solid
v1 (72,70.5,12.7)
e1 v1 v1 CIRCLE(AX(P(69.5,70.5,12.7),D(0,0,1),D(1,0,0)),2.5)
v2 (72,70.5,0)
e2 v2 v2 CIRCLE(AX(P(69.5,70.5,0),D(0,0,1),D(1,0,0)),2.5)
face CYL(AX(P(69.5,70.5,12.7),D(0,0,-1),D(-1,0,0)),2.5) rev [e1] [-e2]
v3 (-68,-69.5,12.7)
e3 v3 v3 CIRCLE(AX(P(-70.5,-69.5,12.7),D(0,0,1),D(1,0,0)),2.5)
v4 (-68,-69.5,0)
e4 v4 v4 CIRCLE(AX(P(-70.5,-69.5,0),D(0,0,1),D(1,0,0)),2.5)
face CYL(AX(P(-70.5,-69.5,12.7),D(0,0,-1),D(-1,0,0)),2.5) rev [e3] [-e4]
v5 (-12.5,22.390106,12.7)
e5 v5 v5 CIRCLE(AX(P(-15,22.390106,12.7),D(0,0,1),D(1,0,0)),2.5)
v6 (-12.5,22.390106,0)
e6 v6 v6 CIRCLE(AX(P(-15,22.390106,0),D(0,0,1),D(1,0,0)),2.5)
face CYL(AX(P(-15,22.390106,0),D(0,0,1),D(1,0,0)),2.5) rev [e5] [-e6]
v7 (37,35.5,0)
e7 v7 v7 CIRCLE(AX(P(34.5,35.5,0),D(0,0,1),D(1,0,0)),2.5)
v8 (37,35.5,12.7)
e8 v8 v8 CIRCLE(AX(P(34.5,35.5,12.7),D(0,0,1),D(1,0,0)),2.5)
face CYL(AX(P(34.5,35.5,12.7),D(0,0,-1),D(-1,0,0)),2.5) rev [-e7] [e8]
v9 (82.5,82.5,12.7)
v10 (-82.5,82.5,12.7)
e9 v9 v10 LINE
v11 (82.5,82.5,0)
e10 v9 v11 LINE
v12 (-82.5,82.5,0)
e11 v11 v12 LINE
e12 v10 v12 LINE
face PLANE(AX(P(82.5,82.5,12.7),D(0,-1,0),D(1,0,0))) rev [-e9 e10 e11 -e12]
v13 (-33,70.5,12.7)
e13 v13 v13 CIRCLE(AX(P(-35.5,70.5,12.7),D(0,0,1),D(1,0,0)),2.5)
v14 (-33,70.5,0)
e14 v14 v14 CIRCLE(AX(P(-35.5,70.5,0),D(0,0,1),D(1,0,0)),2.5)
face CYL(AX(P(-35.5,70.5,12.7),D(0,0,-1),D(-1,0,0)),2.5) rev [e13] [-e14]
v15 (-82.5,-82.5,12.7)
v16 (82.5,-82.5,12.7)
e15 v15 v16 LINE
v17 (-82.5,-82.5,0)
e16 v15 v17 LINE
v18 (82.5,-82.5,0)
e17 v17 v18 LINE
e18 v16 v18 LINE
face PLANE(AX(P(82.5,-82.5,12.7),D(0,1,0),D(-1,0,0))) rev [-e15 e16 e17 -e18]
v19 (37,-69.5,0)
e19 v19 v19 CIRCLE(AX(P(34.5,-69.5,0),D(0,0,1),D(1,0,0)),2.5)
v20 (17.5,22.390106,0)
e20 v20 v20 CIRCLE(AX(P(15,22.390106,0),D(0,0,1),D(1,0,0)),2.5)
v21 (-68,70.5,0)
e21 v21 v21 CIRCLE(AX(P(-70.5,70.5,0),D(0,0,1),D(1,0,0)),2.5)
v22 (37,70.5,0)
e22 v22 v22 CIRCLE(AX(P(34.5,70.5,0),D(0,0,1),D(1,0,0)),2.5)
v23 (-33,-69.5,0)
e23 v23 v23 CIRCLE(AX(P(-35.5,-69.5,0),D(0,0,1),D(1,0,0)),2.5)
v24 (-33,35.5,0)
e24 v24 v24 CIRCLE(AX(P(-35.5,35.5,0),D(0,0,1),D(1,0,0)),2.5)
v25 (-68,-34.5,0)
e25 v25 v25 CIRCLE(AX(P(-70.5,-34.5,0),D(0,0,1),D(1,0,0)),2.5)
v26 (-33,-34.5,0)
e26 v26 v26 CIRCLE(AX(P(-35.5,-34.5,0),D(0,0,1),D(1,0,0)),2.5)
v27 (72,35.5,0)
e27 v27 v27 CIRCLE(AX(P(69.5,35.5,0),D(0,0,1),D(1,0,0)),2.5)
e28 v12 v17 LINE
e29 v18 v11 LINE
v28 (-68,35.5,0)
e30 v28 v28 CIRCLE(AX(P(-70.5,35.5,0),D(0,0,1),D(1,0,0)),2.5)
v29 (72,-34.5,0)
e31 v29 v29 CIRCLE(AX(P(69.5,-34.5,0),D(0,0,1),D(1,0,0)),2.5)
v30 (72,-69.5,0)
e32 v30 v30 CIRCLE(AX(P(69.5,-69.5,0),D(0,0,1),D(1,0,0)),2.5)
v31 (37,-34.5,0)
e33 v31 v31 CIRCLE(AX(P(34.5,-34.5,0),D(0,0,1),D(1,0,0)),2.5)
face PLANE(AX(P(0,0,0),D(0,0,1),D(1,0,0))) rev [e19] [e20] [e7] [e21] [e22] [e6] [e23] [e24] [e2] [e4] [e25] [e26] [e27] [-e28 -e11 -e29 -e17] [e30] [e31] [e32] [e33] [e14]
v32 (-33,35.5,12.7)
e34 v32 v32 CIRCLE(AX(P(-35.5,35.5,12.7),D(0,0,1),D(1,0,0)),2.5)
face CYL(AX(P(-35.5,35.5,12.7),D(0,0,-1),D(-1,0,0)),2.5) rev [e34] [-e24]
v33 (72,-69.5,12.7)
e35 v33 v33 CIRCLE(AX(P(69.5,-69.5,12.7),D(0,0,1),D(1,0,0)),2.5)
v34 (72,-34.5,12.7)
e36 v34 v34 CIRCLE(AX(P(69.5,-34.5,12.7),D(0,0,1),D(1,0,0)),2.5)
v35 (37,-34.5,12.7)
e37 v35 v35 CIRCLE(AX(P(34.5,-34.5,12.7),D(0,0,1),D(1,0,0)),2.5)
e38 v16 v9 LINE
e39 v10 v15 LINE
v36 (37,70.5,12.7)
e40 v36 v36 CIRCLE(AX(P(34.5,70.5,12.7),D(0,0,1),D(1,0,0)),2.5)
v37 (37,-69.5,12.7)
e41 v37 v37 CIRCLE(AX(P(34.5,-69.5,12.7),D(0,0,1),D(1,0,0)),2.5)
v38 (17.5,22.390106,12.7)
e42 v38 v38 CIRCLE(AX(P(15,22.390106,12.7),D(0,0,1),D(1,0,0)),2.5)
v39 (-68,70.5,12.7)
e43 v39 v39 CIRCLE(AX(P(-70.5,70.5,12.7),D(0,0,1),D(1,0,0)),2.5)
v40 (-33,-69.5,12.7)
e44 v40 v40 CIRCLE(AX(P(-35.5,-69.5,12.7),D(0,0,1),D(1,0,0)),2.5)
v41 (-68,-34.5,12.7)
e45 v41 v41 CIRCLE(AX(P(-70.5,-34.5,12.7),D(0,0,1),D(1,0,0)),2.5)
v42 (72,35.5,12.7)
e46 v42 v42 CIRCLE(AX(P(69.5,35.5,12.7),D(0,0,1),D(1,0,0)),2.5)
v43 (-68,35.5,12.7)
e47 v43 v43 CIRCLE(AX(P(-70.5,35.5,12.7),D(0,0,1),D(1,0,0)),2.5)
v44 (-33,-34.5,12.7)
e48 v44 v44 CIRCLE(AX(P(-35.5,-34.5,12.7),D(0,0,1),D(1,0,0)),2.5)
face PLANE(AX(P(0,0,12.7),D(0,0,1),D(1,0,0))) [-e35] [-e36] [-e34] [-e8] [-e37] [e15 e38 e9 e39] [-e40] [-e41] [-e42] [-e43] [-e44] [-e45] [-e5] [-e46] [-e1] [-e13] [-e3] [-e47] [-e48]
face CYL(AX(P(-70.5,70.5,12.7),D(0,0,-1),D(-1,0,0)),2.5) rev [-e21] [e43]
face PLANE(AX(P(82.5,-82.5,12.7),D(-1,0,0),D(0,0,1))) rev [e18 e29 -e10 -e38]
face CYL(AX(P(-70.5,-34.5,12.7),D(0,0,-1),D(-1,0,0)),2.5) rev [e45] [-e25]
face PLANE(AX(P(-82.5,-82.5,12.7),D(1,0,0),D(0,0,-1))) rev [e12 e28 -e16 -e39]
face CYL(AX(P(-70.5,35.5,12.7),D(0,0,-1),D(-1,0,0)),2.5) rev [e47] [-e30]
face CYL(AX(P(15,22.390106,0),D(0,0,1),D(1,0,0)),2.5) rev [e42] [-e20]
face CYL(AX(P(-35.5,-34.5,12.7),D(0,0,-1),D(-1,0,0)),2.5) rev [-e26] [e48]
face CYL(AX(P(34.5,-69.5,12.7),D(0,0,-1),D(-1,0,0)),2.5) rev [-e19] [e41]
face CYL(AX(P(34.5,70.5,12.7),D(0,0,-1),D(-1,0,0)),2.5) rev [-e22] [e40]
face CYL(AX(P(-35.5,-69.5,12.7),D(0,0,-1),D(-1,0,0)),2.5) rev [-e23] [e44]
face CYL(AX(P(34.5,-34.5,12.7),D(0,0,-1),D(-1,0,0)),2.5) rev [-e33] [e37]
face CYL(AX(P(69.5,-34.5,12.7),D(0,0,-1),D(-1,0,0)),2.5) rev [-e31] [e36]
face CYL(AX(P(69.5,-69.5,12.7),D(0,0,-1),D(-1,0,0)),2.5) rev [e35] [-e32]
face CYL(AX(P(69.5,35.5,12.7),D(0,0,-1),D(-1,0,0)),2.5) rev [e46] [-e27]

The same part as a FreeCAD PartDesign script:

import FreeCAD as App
import Part
import Sketcher

V = App.Vector


def add_polygon(sketch, points):
    """Adds a closed chain of lines whose ends are joined by coincident constraints."""
    first, n = sketch.GeometryCount, len(points)
    for a, b in zip(points, points[1:] + points[:1]):
        sketch.addGeometry(Part.LineSegment(App.Vector(*a, 0), App.Vector(*b, 0)), False)
    for i in range(n):
        sketch.addConstraint(Sketcher.Constraint("Coincident", first + i, 2, first + (i + 1) % n, 1))

doc = App.newDocument("Part")
body = doc.addObject("PartDesign::Body", "Body")

sketch1 = doc.addObject("Sketcher::SketchObject", "Sketch")
body.addObject(sketch1)
sketch1.AttachmentSupport = (doc.XY_Plane, [""])
sketch1.MapMode = "FlatFace"
add_polygon(sketch1, [(-82.5, 82.5), (-82.5, -82.5), (82.5, -82.5), (82.5, 82.5)])
sketch1.addGeometry(Part.Circle(V(-70.5, -69.5, 0), V(0, 0, 1), 2.5), False)
sketch1.addGeometry(Part.Circle(V(-35.5, -69.5, 0), V(0, 0, 1), 2.5), False)
sketch1.addGeometry(Part.Circle(V(-70.5, -34.5, 0), V(0, 0, 1), 2.5), False)
sketch1.addGeometry(Part.Circle(V(-35.5, -34.5, 0), V(0, 0, 1), 2.5), False)
sketch1.addGeometry(Part.Circle(V(34.5, -69.5, 0), V(0, 0, 1), 2.5), False)
sketch1.addGeometry(Part.Circle(V(69.5, -69.5, 0), V(0, 0, 1), 2.5), False)
sketch1.addGeometry(Part.Circle(V(34.5, -34.5, 0), V(0, 0, 1), 2.5), False)
sketch1.addGeometry(Part.Circle(V(69.5, -34.5, 0), V(0, 0, 1), 2.5), False)
sketch1.addGeometry(Part.Circle(V(-70.5, 35.5, 0), V(0, 0, 1), 2.5), False)
sketch1.addGeometry(Part.Circle(V(-35.5, 35.5, 0), V(0, 0, 1), 2.5), False)
sketch1.addGeometry(Part.Circle(V(-70.5, 70.5, 0), V(0, 0, 1), 2.5), False)
sketch1.addGeometry(Part.Circle(V(-35.5, 70.5, 0), V(0, 0, 1), 2.5), False)
sketch1.addGeometry(Part.Circle(V(34.5, 35.5, 0), V(0, 0, 1), 2.5), False)
sketch1.addGeometry(Part.Circle(V(69.5, 35.5, 0), V(0, 0, 1), 2.5), False)
sketch1.addGeometry(Part.Circle(V(34.5, 70.5, 0), V(0, 0, 1), 2.5), False)
sketch1.addGeometry(Part.Circle(V(69.5, 70.5, 0), V(0, 0, 1), 2.5), False)
sketch1.addConstraint([
    Sketcher.Constraint("Vertical", 0),
    Sketcher.Constraint("Horizontal", 1),
    Sketcher.Constraint("Vertical", 2),
    Sketcher.Constraint("Horizontal", 3),
    Sketcher.Constraint("Equal", 4, 5),
    Sketcher.Constraint("Equal", 5, 6),
    Sketcher.Constraint("Equal", 6, 7),
    Sketcher.Constraint("Equal", 7, 8),
    Sketcher.Constraint("Equal", 8, 9),
    Sketcher.Constraint("Equal", 9, 10),
    Sketcher.Constraint("Equal", 10, 11),
    Sketcher.Constraint("Equal", 11, 12),
    Sketcher.Constraint("Equal", 12, 13),
    Sketcher.Constraint("Equal", 13, 14),
    Sketcher.Constraint("Equal", 14, 15),
    Sketcher.Constraint("Equal", 15, 16),
    Sketcher.Constraint("Equal", 16, 17),
    Sketcher.Constraint("Equal", 17, 18),
    Sketcher.Constraint("Equal", 18, 19),
    Sketcher.Constraint("Symmetric", 0, 2, 2, 2, -1, 1),
    Sketcher.Constraint("Horizontal", 4, 3, 5, 3),
    Sketcher.Constraint("Horizontal", 6, 3, 7, 3),
    Sketcher.Constraint("Horizontal", 5, 3, 8, 3),
    Sketcher.Constraint("Horizontal", 8, 3, 9, 3),
    Sketcher.Constraint("Horizontal", 7, 3, 10, 3),
    Sketcher.Constraint("Horizontal", 10, 3, 11, 3),
    Sketcher.Constraint("Horizontal", 12, 3, 13, 3),
    Sketcher.Constraint("Horizontal", 14, 3, 15, 3),
    Sketcher.Constraint("Horizontal", 13, 3, 16, 3),
    Sketcher.Constraint("Horizontal", 16, 3, 17, 3),
    Sketcher.Constraint("Horizontal", 15, 3, 18, 3),
    Sketcher.Constraint("Horizontal", 18, 3, 19, 3),
    Sketcher.Constraint("Vertical", 4, 3, 6, 3),
    Sketcher.Constraint("Vertical", 5, 3, 7, 3),
    Sketcher.Constraint("Vertical", 8, 3, 10, 3),
    Sketcher.Constraint("Vertical", 9, 3, 11, 3),
    Sketcher.Constraint("Vertical", 6, 3, 12, 3),
    Sketcher.Constraint("Vertical", 7, 3, 13, 3),
    Sketcher.Constraint("Vertical", 12, 3, 14, 3),
    Sketcher.Constraint("Vertical", 13, 3, 15, 3),
    Sketcher.Constraint("Vertical", 10, 3, 16, 3),
    Sketcher.Constraint("Vertical", 11, 3, 17, 3),
    Sketcher.Constraint("Vertical", 16, 3, 18, 3),
    Sketcher.Constraint("Vertical", 17, 3, 19, 3),
    Sketcher.Constraint("Equal", 3, 0),
    Sketcher.Constraint("Diameter", 4, 5.0),
    Sketcher.Constraint("DistanceX", 1, 1, 1, 2, 165.0),
    Sketcher.Constraint("DistanceX", 4, 3, 5, 3, 35.0),
    Sketcher.Constraint("DistanceY", 4, 3, 6, 3, 35.0),
    Sketcher.Constraint("DistanceX", 5, 3, 8, 3, 70.0),
    Sketcher.Constraint("DistanceX", 8, 3, 9, 3, 35.0),
    Sketcher.Constraint("DistanceY", 6, 3, 12, 3, 70.0),
    Sketcher.Constraint("DistanceY", 12, 3, 14, 3, 35.0),
    Sketcher.Constraint("DistanceX", 0, 2, 4, 3, 12.0),
    Sketcher.Constraint("DistanceY", 0, 2, 4, 3, 13.0),
])
pad1 = doc.addObject("PartDesign::Pad", "Pad")
body.addObject(pad1)
pad1.Profile = sketch1
pad1.Length = 12.7

sketch2 = doc.addObject("Sketcher::SketchObject", "Sketch001")
body.addObject(sketch2)
sketch2.AttachmentSupport = (doc.XY_Plane, [""])
sketch2.MapMode = "FlatFace"
sketch2.addGeometry([
    Part.Circle(V(-15, 22.4, 0), V(0, 0, 1), 2.5),
    Part.Circle(V(15, 22.4, 0), V(0, 0, 1), 2.5),
    Part.Circle(V(69.5, -69.5, 0), V(0, 0, 1), 2.5),
    Part.Circle(V(69.5, -34.5, 0), V(0, 0, 1), 2.5),
    Part.Circle(V(34.5, -69.5, 0), V(0, 0, 1), 2.5),
    Part.Circle(V(34.5, -34.5, 0), V(0, 0, 1), 2.5),
    Part.Circle(V(-35.5, -69.5, 0), V(0, 0, 1), 2.5),
    Part.Circle(V(-70.5, -69.5, 0), V(0, 0, 1), 2.5),
    Part.Circle(V(-35.5, -34.5, 0), V(0, 0, 1), 2.5),
    Part.Circle(V(-70.5, -34.5, 0), V(0, 0, 1), 2.5),
    Part.Circle(V(69.5, 35.5, 0), V(0, 0, 1), 2.5),
    Part.Circle(V(34.5, 35.5, 0), V(0, 0, 1), 2.5),
    Part.Circle(V(69.5, 70.5, 0), V(0, 0, 1), 2.5),
    Part.Circle(V(34.5, 70.5, 0), V(0, 0, 1), 2.5),
    Part.Circle(V(-35.5, 35.5, 0), V(0, 0, 1), 2.5),
    Part.Circle(V(-70.5, 35.5, 0), V(0, 0, 1), 2.5),
    Part.Circle(V(-35.5, 70.5, 0), V(0, 0, 1), 2.5),
    Part.Circle(V(-70.5, 70.5, 0), V(0, 0, 1), 2.5),
], False)
sketch2.addConstraint([
    Sketcher.Constraint("Equal", 0, 1),
    Sketcher.Constraint("Equal", 1, 2),
    Sketcher.Constraint("Equal", 2, 3),
    Sketcher.Constraint("Equal", 3, 4),
    Sketcher.Constraint("Equal", 4, 5),
    Sketcher.Constraint("Equal", 5, 6),
    Sketcher.Constraint("Equal", 6, 7),
    Sketcher.Constraint("Equal", 7, 8),
    Sketcher.Constraint("Equal", 8, 9),
    Sketcher.Constraint("Equal", 9, 10),
    Sketcher.Constraint("Equal", 10, 11),
    Sketcher.Constraint("Equal", 11, 12),
    Sketcher.Constraint("Equal", 12, 13),
    Sketcher.Constraint("Equal", 13, 14),
    Sketcher.Constraint("Equal", 14, 15),
    Sketcher.Constraint("Equal", 15, 16),
    Sketcher.Constraint("Equal", 16, 17),
    Sketcher.Constraint("Symmetric", 0, 3, 1, 3, -2),
    Sketcher.Constraint("Horizontal", 2, 3, 4, 3),
    Sketcher.Constraint("Horizontal", 3, 3, 5, 3),
    Sketcher.Constraint("Horizontal", 4, 3, 6, 3),
    Sketcher.Constraint("Horizontal", 6, 3, 7, 3),
    Sketcher.Constraint("Horizontal", 5, 3, 8, 3),
    Sketcher.Constraint("Horizontal", 8, 3, 9, 3),
    Sketcher.Constraint("Horizontal", 10, 3, 11, 3),
    Sketcher.Constraint("Horizontal", 12, 3, 13, 3),
    Sketcher.Constraint("Horizontal", 11, 3, 14, 3),
    Sketcher.Constraint("Horizontal", 14, 3, 15, 3),
    Sketcher.Constraint("Horizontal", 13, 3, 16, 3),
    Sketcher.Constraint("Horizontal", 16, 3, 17, 3),
    Sketcher.Constraint("Vertical", 2, 3, 3, 3),
    Sketcher.Constraint("Vertical", 4, 3, 5, 3),
    Sketcher.Constraint("Vertical", 6, 3, 8, 3),
    Sketcher.Constraint("Vertical", 7, 3, 9, 3),
    Sketcher.Constraint("Vertical", 3, 3, 10, 3),
    Sketcher.Constraint("Vertical", 5, 3, 11, 3),
    Sketcher.Constraint("Vertical", 10, 3, 12, 3),
    Sketcher.Constraint("Vertical", 11, 3, 13, 3),
    Sketcher.Constraint("Vertical", 8, 3, 14, 3),
    Sketcher.Constraint("Vertical", 9, 3, 15, 3),
    Sketcher.Constraint("Vertical", 14, 3, 16, 3),
    Sketcher.Constraint("Vertical", 15, 3, 17, 3),
    Sketcher.Constraint("Diameter", 0, 5.0),
    Sketcher.Constraint("DistanceX", 0, 3, -1, 1, 15.0),
    Sketcher.Constraint("DistanceY", 2, 3, 3, 3, 35.0),
    Sketcher.Constraint("DistanceX", 4, 3, 2, 3, 35.0),
    Sketcher.Constraint("DistanceX", 6, 3, 4, 3, 70.0),
    Sketcher.Constraint("DistanceX", 7, 3, 6, 3, 35.0),
    Sketcher.Constraint("DistanceY", 3, 3, 10, 3, 70.0),
    Sketcher.Constraint("DistanceY", 10, 3, 12, 3, 35.0),
    Sketcher.Constraint("DistanceX", -1, 1, 2, 3, 69.5),
    Sketcher.Constraint("DistanceY", 2, 3, -1, 1, 69.5),
    Sketcher.Constraint("DistanceY", -1, 1, 0, 3, 22.390106),
])
pocket1 = doc.addObject("PartDesign::Pocket", "Pocket")
body.addObject(pocket1)
pocket1.Profile = sketch2
pocket1.Length = 12.7
pocket1.Reversed = True

doc.recompute()
